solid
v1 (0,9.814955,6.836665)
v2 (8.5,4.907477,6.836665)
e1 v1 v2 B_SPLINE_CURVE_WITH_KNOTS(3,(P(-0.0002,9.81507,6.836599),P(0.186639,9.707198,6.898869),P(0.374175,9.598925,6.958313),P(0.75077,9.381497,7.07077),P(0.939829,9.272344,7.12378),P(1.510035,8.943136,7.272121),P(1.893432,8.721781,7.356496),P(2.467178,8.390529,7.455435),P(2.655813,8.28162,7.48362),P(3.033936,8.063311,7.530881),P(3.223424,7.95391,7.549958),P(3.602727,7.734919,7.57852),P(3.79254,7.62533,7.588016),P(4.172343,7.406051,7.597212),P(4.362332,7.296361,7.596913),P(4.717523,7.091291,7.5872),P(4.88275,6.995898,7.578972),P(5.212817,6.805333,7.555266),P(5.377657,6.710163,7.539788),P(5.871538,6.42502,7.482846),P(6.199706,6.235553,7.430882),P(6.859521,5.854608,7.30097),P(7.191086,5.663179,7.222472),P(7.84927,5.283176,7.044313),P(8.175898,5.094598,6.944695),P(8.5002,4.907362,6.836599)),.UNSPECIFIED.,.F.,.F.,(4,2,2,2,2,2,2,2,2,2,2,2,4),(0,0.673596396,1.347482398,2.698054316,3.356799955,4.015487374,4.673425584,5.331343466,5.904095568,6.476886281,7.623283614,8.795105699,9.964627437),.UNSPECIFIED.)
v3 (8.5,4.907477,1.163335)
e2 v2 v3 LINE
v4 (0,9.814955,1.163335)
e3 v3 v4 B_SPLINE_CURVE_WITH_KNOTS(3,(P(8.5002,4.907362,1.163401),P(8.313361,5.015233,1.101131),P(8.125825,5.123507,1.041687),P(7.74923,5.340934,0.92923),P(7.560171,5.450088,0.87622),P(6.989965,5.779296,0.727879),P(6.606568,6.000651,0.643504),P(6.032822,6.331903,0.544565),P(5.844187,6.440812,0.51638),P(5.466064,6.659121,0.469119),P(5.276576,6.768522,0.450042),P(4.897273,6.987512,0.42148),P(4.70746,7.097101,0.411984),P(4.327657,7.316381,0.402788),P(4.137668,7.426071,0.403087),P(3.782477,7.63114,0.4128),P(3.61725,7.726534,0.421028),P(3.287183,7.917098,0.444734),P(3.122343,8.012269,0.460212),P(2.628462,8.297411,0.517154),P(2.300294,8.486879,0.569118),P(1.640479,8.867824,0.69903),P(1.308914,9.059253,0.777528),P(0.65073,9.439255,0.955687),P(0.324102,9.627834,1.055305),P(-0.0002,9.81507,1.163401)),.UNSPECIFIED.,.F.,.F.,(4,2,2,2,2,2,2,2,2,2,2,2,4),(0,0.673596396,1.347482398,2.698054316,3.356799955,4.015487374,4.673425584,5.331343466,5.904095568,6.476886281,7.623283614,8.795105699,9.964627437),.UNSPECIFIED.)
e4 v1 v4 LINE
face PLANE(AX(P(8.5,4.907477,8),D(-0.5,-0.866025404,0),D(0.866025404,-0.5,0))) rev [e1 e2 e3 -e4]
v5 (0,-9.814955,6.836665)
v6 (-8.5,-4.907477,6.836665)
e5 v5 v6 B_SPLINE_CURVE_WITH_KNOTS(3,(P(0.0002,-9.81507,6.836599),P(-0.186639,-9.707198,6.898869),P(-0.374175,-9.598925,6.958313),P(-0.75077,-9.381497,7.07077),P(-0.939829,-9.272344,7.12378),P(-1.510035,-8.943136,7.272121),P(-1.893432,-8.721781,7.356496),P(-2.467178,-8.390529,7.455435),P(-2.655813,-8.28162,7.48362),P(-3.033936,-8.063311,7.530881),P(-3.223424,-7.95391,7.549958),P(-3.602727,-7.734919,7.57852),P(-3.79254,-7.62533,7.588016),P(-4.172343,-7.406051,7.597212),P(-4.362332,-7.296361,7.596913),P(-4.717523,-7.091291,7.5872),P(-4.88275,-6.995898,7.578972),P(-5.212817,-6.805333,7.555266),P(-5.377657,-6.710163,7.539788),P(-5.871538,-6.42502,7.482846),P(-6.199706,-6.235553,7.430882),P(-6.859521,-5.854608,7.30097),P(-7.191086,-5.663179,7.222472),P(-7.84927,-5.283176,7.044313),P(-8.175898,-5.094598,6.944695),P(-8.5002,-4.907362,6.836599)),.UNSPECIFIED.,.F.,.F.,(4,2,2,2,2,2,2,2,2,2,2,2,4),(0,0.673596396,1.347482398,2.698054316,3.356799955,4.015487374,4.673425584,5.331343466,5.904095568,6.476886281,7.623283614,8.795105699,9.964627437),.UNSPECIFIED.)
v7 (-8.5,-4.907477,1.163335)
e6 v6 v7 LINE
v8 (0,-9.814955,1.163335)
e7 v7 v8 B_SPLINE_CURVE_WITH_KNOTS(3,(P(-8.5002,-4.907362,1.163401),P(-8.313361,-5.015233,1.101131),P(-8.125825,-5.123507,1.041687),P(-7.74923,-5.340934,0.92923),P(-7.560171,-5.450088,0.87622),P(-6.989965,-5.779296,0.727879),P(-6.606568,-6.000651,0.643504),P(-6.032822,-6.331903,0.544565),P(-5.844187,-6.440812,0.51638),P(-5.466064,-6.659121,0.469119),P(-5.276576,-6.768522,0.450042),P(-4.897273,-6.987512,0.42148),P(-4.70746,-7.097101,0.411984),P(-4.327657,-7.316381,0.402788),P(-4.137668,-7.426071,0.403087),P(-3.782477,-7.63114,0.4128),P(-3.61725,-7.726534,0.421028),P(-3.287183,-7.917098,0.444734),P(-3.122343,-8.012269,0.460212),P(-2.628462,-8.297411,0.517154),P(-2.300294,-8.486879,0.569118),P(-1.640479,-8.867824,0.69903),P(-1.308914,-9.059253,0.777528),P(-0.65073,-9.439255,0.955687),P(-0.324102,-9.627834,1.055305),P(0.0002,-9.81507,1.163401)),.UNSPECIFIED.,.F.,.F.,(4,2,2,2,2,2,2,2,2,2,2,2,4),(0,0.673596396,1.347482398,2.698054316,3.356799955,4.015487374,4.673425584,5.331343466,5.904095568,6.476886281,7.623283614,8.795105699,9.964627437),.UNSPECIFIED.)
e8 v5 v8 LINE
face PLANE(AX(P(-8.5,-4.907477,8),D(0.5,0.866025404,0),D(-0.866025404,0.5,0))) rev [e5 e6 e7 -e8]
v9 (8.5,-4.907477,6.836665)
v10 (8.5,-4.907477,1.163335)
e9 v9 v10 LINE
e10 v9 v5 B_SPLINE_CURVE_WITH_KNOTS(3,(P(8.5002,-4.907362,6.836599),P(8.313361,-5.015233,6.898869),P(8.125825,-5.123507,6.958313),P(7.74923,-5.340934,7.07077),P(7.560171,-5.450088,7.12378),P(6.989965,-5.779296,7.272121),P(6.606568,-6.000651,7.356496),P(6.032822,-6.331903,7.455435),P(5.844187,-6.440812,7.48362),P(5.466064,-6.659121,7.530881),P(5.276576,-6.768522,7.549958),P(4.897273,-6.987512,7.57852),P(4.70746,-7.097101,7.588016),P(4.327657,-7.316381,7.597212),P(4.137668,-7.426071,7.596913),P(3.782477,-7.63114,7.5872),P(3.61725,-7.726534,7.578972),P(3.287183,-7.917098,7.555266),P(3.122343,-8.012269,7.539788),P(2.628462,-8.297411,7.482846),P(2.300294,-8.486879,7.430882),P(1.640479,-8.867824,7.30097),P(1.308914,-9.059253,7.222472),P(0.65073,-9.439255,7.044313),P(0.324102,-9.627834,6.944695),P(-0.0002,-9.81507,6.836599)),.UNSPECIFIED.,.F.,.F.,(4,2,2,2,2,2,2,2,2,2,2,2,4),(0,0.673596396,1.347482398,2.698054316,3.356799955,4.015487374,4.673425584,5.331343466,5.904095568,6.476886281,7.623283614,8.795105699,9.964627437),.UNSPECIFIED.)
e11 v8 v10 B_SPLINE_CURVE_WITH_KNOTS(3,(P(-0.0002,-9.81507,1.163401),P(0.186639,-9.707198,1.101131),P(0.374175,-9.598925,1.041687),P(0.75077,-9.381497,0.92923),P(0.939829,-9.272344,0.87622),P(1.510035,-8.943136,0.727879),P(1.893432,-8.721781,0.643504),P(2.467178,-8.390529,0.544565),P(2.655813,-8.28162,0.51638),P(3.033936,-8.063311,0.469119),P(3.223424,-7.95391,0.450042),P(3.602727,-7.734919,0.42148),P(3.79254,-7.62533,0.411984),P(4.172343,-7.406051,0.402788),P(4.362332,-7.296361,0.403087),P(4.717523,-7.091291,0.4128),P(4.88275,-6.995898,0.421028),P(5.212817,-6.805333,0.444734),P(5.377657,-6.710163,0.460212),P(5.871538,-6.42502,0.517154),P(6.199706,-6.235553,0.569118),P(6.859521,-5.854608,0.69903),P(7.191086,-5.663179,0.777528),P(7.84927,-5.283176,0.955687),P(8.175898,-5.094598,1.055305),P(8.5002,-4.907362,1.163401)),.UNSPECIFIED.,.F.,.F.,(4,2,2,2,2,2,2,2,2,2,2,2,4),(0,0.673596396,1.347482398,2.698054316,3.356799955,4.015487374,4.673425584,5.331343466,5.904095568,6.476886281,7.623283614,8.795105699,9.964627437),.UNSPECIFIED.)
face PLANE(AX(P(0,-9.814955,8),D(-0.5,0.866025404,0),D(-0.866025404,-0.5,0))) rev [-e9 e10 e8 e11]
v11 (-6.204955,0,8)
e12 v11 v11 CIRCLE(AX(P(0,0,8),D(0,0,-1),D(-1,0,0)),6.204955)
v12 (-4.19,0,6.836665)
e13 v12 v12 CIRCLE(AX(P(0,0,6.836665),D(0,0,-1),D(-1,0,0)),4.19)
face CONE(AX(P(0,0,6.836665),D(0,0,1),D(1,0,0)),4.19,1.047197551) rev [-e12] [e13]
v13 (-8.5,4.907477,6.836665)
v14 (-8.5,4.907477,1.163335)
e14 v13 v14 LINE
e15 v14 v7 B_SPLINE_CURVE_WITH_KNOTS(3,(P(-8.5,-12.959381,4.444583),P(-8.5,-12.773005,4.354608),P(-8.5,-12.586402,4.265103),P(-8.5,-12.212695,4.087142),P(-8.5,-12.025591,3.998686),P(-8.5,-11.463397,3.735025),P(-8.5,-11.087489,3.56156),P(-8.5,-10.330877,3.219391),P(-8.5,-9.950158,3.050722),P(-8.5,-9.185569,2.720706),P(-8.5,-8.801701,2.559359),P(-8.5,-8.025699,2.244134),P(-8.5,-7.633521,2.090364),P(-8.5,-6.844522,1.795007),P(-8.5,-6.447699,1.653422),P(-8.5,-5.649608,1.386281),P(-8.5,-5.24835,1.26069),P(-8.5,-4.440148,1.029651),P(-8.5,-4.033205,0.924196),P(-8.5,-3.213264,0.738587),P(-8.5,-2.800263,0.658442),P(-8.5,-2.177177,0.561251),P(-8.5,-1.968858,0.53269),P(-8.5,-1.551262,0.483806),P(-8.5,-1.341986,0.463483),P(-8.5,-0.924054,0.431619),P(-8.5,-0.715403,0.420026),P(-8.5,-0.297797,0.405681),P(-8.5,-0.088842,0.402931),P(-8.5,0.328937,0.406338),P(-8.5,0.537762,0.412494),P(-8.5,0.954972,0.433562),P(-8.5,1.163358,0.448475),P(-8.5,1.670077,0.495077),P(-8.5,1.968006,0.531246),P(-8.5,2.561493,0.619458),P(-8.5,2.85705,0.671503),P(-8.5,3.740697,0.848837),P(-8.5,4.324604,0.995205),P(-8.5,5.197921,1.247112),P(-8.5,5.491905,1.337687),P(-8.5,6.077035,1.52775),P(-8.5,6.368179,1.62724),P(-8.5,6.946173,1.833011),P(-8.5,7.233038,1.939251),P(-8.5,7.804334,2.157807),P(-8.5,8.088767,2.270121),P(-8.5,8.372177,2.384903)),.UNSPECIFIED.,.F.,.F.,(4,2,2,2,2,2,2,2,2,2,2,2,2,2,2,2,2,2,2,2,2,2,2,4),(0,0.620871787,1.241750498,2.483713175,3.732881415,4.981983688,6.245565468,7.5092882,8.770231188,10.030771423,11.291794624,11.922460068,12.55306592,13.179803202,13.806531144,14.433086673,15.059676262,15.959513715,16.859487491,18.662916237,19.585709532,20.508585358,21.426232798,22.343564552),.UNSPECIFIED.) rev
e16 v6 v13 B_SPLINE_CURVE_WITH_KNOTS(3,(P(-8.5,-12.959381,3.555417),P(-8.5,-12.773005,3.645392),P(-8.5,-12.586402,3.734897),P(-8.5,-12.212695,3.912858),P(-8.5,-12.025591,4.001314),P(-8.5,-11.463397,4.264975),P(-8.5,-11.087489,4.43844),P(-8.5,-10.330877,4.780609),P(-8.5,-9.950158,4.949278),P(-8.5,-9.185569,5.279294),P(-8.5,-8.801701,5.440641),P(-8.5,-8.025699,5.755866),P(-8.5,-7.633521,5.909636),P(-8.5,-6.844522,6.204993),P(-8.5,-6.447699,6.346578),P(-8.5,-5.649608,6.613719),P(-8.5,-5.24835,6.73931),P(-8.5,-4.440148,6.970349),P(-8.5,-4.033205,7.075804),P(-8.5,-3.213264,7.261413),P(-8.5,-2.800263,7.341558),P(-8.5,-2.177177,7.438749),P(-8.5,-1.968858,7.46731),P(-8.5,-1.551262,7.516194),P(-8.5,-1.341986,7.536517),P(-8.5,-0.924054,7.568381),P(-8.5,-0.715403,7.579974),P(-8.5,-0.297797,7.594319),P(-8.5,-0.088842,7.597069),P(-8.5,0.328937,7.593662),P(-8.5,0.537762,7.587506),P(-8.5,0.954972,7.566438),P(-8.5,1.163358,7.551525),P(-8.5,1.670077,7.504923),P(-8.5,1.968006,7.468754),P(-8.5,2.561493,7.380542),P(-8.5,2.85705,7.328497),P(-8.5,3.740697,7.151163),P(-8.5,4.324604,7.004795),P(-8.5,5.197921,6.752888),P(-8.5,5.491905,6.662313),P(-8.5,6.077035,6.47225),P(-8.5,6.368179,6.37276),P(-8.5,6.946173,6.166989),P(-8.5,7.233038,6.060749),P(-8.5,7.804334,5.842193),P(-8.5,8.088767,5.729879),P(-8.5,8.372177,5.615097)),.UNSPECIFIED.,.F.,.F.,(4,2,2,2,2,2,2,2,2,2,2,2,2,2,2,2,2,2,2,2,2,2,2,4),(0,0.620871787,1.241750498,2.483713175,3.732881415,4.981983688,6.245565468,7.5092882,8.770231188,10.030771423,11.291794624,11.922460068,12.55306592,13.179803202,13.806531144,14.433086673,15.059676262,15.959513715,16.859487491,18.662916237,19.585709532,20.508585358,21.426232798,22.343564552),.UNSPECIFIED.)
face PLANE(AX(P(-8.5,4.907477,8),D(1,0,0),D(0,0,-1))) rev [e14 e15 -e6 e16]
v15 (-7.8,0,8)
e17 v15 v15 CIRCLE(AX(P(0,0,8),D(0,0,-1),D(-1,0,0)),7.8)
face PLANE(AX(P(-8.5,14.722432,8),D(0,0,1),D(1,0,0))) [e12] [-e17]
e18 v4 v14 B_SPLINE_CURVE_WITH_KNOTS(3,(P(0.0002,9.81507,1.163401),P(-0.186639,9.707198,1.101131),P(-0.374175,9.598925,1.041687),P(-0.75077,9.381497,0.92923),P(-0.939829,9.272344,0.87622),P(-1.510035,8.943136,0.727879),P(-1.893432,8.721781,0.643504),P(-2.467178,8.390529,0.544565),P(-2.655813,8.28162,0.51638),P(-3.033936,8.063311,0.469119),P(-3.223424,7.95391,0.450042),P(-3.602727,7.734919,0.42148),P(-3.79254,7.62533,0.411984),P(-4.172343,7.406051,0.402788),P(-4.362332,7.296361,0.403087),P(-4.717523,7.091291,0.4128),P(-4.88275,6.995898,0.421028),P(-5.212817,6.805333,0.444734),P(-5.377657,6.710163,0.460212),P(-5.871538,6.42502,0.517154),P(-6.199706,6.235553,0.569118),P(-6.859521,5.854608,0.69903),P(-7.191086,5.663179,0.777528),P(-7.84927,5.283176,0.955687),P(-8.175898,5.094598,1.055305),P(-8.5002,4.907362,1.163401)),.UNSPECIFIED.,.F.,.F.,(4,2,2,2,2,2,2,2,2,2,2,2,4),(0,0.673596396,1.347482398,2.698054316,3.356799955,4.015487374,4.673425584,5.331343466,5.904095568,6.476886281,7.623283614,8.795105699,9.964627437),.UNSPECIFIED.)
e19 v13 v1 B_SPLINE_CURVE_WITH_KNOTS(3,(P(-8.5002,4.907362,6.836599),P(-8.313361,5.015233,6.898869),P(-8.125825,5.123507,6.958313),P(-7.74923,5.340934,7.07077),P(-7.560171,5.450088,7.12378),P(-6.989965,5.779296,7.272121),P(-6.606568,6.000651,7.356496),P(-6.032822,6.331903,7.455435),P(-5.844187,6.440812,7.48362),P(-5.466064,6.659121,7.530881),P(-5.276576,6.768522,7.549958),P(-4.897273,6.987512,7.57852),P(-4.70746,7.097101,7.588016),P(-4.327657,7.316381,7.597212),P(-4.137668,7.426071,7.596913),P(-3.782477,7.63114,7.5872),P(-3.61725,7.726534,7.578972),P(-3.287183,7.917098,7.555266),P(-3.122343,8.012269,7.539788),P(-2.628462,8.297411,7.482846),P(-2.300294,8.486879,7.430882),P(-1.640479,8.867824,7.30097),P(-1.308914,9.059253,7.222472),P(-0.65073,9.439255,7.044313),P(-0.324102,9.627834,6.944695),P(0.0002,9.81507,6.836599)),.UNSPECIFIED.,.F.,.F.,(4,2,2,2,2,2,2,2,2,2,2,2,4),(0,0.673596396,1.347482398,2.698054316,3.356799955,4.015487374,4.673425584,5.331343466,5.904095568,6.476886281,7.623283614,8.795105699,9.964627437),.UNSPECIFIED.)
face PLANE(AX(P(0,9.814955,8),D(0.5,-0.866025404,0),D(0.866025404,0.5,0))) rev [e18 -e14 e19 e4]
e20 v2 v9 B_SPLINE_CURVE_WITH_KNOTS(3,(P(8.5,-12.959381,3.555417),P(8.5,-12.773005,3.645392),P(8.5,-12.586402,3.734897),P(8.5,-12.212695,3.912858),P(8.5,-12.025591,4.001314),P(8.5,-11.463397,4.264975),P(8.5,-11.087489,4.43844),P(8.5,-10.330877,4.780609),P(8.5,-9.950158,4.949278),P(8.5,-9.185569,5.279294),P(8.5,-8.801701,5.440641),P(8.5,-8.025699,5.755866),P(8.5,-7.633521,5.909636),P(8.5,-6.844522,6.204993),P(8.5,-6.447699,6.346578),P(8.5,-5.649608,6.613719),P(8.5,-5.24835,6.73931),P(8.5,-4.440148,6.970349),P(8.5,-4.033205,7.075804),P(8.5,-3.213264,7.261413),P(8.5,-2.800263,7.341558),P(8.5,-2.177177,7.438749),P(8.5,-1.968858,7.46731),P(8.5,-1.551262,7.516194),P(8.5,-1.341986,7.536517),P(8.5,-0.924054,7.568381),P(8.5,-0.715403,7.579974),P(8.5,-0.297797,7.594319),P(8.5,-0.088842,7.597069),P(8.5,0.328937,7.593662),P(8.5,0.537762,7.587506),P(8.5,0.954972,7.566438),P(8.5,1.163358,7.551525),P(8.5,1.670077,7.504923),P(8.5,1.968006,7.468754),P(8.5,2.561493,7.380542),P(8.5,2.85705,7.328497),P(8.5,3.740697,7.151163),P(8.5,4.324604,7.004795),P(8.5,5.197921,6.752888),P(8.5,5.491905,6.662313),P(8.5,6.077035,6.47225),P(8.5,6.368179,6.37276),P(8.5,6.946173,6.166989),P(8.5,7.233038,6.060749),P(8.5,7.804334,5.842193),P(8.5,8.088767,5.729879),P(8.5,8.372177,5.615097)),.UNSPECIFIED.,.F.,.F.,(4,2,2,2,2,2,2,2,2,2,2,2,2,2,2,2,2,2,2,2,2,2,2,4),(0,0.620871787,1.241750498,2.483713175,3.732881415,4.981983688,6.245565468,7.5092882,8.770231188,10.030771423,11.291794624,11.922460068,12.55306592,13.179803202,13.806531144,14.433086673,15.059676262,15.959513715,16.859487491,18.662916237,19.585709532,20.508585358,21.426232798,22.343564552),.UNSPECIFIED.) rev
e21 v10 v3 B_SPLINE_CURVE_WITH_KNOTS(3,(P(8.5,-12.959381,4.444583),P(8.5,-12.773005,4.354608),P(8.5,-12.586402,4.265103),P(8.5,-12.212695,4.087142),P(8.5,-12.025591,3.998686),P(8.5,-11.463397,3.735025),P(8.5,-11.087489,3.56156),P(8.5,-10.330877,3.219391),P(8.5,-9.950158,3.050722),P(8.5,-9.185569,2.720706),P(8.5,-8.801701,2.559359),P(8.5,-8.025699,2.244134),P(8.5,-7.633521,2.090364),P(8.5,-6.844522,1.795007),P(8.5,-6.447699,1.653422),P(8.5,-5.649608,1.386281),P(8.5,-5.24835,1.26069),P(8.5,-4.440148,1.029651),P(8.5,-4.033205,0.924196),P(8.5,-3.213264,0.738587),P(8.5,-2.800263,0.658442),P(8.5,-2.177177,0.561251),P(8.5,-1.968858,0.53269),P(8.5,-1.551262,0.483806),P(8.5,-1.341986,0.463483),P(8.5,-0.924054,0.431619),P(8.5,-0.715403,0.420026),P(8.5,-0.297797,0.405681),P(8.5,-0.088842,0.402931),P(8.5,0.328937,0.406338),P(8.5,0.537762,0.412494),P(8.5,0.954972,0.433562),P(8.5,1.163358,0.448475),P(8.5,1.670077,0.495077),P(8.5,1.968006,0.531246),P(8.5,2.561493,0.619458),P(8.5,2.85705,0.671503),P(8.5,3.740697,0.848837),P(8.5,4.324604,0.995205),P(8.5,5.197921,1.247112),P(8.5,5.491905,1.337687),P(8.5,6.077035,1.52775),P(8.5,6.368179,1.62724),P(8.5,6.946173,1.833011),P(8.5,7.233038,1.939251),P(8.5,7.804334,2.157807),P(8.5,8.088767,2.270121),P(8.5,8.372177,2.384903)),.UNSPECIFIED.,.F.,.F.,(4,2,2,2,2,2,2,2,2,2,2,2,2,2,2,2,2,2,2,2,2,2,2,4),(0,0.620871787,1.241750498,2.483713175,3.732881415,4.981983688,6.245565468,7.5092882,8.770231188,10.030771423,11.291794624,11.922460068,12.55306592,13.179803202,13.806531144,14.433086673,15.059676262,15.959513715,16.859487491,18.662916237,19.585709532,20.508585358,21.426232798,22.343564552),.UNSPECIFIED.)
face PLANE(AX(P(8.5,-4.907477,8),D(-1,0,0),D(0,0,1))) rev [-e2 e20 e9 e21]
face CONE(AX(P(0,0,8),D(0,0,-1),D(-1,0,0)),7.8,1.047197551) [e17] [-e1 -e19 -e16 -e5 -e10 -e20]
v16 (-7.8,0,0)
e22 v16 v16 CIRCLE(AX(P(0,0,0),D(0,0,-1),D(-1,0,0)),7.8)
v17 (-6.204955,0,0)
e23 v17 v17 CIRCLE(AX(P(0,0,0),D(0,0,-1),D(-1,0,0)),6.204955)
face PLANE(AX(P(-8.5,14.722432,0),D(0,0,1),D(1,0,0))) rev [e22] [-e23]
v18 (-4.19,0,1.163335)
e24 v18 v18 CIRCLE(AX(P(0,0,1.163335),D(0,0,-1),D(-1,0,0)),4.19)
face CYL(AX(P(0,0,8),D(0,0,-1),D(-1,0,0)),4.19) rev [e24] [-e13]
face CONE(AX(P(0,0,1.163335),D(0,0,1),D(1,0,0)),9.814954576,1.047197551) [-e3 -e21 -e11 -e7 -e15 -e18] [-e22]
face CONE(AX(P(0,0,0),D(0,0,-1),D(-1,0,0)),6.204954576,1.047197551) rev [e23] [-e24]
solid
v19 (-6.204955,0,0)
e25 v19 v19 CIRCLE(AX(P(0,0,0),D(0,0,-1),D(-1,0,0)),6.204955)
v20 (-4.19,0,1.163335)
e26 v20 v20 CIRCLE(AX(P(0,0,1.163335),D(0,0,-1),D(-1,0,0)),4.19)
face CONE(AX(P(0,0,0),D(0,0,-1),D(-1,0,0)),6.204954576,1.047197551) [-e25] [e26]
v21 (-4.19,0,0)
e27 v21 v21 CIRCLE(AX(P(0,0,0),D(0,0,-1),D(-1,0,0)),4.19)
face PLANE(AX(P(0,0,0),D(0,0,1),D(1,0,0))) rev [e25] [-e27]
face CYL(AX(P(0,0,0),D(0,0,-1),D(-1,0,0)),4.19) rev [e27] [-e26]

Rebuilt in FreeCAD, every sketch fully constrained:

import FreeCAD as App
import Part
import Sketcher
from FreeCAD import Vector
Q = App.Units.Quantity

doc = App.newDocument("Part")
body = doc.addObject("PartDesign::Body", "Body")

# Sketch on XY plane
sketch1 = doc.addObject("Sketcher::SketchObject", "Sketch")
body.addObject(sketch1)
sketch1.AttachmentSupport = (doc.XY_Plane, [""])
sketch1.MapMode = "FlatFace"
sketch1.addGeometry([
    Part.LineSegment(Vector(0, 9.814955, 0), Vector(-8.5, 4.907477, 0)),  # 0
    Part.LineSegment(Vector(-8.5, 4.907477, 0), Vector(-8.5, -4.907477, 0)),  # 1
    Part.LineSegment(Vector(-8.5, -4.907477, 0), Vector(0, -9.814955, 0)),  # 2
    Part.LineSegment(Vector(0, -9.814955, 0), Vector(8.5, -4.907477, 0)),  # 3
    Part.LineSegment(Vector(8.5, -4.907477, 0), Vector(8.5, 4.907477, 0)),  # 4
    Part.LineSegment(Vector(8.5, 4.907477, 0), Vector(0, 9.814955, 0)),  # 5
    Part.Circle(Vector(0, 0, 0), Vector(0, 0, 1), 4.19),  # 6
], False)
sketch1.addConstraint([
    Sketcher.Constraint("Coincident", 0, 2, 1, 1),
    Sketcher.Constraint("Coincident", 1, 2, 2, 1),
    Sketcher.Constraint("Coincident", 2, 2, 3, 1),
    Sketcher.Constraint("Coincident", 3, 2, 4, 1),
    Sketcher.Constraint("Coincident", 4, 2, 5, 1),
    Sketcher.Constraint("Coincident", 5, 2, 0, 1),
    Sketcher.Constraint("Vertical", 1),
    Sketcher.Constraint("Vertical", 4),
    Sketcher.Constraint("Coincident", 6, 3, -1, 1),
    Sketcher.Constraint("Symmetric", 0, 2, 3, 2, -1, 1),
    Sketcher.Constraint("Symmetric", 2, 2, 5, 2, -1, 1),
    Sketcher.Constraint("PointOnObject", 2, 2, -2),
    Sketcher.Constraint("Parallel", 2, 5),
    Sketcher.Constraint("Horizontal", 1, 2, 3, 2),
    Sketcher.Constraint("Diameter", 6, Q("8.38 mm")),
    Sketcher.Constraint("Angle", 0, Q("-150 deg")),
    Sketcher.Constraint("DistanceX", 1, 2, 3, 2, Q("17 mm")),
    Sketcher.Constraint("DistanceY", 1, 2, 1, 1, Q("9.814955 mm")),
])
pad1 = doc.addObject("PartDesign::Pad", "Pad")
body.addObject(pad1)
pad1.Profile = sketch1
pad1.Length = 8

# Sketch on YZ plane
sketch2 = doc.addObject("Sketcher::SketchObject", "Sketch001")
body.addObject(sketch2)
sketch2.AttachmentSupport = (doc.YZ_Plane, [""])
sketch2.MapMode = "FlatFace"
sketch2.addGeometry([
    Part.LineSegment(Vector(9.814955, 8, 0), Vector(7.8, 8, 0)),  # 0
    Part.LineSegment(Vector(7.8, 8, 0), Vector(9.814955, 6.836665, 0)),  # 1
    Part.LineSegment(Vector(9.814955, 6.836665, 0), Vector(9.814955, 8, 0)),  # 2
    Part.LineSegment(Vector(4.19, 8, 0), Vector(4.19, 6.836665, 0)),  # 3
    Part.LineSegment(Vector(4.19, 6.836665, 0), Vector(6.204955, 8, 0)),  # 4
    Part.LineSegment(Vector(6.204955, 8, 0), Vector(4.19, 8, 0)),  # 5
    Part.LineSegment(Vector(4.19, 0, 0), Vector(6.204955, 0, 0)),  # 6
    Part.LineSegment(Vector(6.204955, 0, 0), Vector(4.19, 1.163335, 0)),  # 7
    Part.LineSegment(Vector(4.19, 1.163335, 0), Vector(4.19, 0, 0)),  # 8
    Part.LineSegment(Vector(9.814955, 1.163335, 0), Vector(7.8, 0, 0)),  # 9
    Part.LineSegment(Vector(7.8, 0, 0), Vector(9.814955, 0, 0)),  # 10
    Part.LineSegment(Vector(9.814955, 0, 0), Vector(9.814955, 1.163335, 0)),  # 11
], False)
sketch2.addConstraint([
    Sketcher.Constraint("Coincident", 0, 2, 1, 1),
    Sketcher.Constraint("Coincident", 1, 2, 2, 1),
    Sketcher.Constraint("Coincident", 2, 2, 0, 1),
    Sketcher.Constraint("Coincident", 3, 2, 4, 1),
    Sketcher.Constraint("Coincident", 4, 2, 5, 1),
    Sketcher.Constraint("Coincident", 5, 2, 3, 1),
    Sketcher.Constraint("Coincident", 6, 2, 7, 1),
    Sketcher.Constraint("Coincident", 7, 2, 8, 1),
    Sketcher.Constraint("Coincident", 8, 2, 6, 1),
    Sketcher.Constraint("Coincident", 9, 2, 10, 1),
    Sketcher.Constraint("Coincident", 10, 2, 11, 1),
    Sketcher.Constraint("Coincident", 11, 2, 9, 1),
    Sketcher.Constraint("Horizontal", 0),
    Sketcher.Constraint("Vertical", 2),
    Sketcher.Constraint("Vertical", 3),
    Sketcher.Constraint("Horizontal", 5),
    Sketcher.Constraint("Horizontal", 6),
    Sketcher.Constraint("Vertical", 8),
    Sketcher.Constraint("Horizontal", 10),
    Sketcher.Constraint("Vertical", 11),
    Sketcher.Constraint("PointOnObject", 6, 2, -1),
    Sketcher.Constraint("PointOnObject", 9, 2, -1),
    Sketcher.Constraint("Parallel", 1, 7),
    Sketcher.Constraint("Parallel", 4, 9),
    Sketcher.Constraint("Horizontal", 1, 2, 3, 2),
    Sketcher.Constraint("Horizontal", 2, 2, 4, 2),
    Sketcher.Constraint("Horizontal", 7, 2, 11, 2),
    Sketcher.Constraint("Vertical", 4, 2, 6, 2),
    Sketcher.Constraint("Vertical", 5, 2, 7, 2),
    Sketcher.Constraint("Vertical", 0, 2, 9, 2),
    Sketcher.Constraint("Vertical", 2, 2, 10, 2),
    Sketcher.Constraint("Angle", 1, Q("-30 deg")),
    Sketcher.Constraint("DistanceY", -1, 1, 0, 2, Q("8 mm")),
    Sketcher.Constraint("DistanceX", -1, 1, 0, 2, Q("7.8 mm")),
    Sketcher.Constraint("DistanceX", -1, 1, 3, 2, Q("4.19 mm")),
    Sketcher.Constraint("Distance", 1, Q("2.326669 mm")),
])
groove = doc.addObject("PartDesign::Groove", "Groove")
body.addObject(groove)
groove.Profile = sketch2
groove.ReferenceAxis = (sketch2, ["V_Axis"])
groove.Angle = 360
body2 = doc.addObject("PartDesign::Body", "Body001")

# Sketch on YZ plane
sketch3 = doc.addObject("Sketcher::SketchObject", "Sketch002")
body2.addObject(sketch3)
sketch3.AttachmentSupport = (doc.getObject("YZ_Plane001"), [""])
sketch3.MapMode = "FlatFace"
sketch3.addGeometry([
    Part.LineSegment(Vector(6.204955, 0, 0), Vector(4.19, 1.163335, 0)),
    Part.LineSegment(Vector(4.19, 1.163335, 0), Vector(4.19, 0, 0)),
    Part.LineSegment(Vector(4.19, 0, 0), Vector(6.204955, 0, 0)),
], False)
sketch3.addConstraint([
    Sketcher.Constraint("Coincident", 0, 2, 1, 1),
    Sketcher.Constraint("Coincident", 1, 2, 2, 1),
    Sketcher.Constraint("Coincident", 2, 2, 0, 1),
    Sketcher.Constraint("Vertical", 1),
    Sketcher.Constraint("Horizontal", 2),
    Sketcher.Constraint("PointOnObject", 1, 2, -1),
    Sketcher.Constraint("Angle", 0, Q("150 deg")),
    Sketcher.Constraint("DistanceX", -1, 1, 0, 2, Q("4.19 mm")),
    Sketcher.Constraint("Distance", 0, Q("2.326669 mm")),
])
revolution = doc.addObject("PartDesign::Revolution", "Revolution")
body2.addObject(revolution)
revolution.Profile = sketch3
revolution.ReferenceAxis = (sketch3, ["V_Axis"])
revolution.Angle = 360

doc.recompute()
